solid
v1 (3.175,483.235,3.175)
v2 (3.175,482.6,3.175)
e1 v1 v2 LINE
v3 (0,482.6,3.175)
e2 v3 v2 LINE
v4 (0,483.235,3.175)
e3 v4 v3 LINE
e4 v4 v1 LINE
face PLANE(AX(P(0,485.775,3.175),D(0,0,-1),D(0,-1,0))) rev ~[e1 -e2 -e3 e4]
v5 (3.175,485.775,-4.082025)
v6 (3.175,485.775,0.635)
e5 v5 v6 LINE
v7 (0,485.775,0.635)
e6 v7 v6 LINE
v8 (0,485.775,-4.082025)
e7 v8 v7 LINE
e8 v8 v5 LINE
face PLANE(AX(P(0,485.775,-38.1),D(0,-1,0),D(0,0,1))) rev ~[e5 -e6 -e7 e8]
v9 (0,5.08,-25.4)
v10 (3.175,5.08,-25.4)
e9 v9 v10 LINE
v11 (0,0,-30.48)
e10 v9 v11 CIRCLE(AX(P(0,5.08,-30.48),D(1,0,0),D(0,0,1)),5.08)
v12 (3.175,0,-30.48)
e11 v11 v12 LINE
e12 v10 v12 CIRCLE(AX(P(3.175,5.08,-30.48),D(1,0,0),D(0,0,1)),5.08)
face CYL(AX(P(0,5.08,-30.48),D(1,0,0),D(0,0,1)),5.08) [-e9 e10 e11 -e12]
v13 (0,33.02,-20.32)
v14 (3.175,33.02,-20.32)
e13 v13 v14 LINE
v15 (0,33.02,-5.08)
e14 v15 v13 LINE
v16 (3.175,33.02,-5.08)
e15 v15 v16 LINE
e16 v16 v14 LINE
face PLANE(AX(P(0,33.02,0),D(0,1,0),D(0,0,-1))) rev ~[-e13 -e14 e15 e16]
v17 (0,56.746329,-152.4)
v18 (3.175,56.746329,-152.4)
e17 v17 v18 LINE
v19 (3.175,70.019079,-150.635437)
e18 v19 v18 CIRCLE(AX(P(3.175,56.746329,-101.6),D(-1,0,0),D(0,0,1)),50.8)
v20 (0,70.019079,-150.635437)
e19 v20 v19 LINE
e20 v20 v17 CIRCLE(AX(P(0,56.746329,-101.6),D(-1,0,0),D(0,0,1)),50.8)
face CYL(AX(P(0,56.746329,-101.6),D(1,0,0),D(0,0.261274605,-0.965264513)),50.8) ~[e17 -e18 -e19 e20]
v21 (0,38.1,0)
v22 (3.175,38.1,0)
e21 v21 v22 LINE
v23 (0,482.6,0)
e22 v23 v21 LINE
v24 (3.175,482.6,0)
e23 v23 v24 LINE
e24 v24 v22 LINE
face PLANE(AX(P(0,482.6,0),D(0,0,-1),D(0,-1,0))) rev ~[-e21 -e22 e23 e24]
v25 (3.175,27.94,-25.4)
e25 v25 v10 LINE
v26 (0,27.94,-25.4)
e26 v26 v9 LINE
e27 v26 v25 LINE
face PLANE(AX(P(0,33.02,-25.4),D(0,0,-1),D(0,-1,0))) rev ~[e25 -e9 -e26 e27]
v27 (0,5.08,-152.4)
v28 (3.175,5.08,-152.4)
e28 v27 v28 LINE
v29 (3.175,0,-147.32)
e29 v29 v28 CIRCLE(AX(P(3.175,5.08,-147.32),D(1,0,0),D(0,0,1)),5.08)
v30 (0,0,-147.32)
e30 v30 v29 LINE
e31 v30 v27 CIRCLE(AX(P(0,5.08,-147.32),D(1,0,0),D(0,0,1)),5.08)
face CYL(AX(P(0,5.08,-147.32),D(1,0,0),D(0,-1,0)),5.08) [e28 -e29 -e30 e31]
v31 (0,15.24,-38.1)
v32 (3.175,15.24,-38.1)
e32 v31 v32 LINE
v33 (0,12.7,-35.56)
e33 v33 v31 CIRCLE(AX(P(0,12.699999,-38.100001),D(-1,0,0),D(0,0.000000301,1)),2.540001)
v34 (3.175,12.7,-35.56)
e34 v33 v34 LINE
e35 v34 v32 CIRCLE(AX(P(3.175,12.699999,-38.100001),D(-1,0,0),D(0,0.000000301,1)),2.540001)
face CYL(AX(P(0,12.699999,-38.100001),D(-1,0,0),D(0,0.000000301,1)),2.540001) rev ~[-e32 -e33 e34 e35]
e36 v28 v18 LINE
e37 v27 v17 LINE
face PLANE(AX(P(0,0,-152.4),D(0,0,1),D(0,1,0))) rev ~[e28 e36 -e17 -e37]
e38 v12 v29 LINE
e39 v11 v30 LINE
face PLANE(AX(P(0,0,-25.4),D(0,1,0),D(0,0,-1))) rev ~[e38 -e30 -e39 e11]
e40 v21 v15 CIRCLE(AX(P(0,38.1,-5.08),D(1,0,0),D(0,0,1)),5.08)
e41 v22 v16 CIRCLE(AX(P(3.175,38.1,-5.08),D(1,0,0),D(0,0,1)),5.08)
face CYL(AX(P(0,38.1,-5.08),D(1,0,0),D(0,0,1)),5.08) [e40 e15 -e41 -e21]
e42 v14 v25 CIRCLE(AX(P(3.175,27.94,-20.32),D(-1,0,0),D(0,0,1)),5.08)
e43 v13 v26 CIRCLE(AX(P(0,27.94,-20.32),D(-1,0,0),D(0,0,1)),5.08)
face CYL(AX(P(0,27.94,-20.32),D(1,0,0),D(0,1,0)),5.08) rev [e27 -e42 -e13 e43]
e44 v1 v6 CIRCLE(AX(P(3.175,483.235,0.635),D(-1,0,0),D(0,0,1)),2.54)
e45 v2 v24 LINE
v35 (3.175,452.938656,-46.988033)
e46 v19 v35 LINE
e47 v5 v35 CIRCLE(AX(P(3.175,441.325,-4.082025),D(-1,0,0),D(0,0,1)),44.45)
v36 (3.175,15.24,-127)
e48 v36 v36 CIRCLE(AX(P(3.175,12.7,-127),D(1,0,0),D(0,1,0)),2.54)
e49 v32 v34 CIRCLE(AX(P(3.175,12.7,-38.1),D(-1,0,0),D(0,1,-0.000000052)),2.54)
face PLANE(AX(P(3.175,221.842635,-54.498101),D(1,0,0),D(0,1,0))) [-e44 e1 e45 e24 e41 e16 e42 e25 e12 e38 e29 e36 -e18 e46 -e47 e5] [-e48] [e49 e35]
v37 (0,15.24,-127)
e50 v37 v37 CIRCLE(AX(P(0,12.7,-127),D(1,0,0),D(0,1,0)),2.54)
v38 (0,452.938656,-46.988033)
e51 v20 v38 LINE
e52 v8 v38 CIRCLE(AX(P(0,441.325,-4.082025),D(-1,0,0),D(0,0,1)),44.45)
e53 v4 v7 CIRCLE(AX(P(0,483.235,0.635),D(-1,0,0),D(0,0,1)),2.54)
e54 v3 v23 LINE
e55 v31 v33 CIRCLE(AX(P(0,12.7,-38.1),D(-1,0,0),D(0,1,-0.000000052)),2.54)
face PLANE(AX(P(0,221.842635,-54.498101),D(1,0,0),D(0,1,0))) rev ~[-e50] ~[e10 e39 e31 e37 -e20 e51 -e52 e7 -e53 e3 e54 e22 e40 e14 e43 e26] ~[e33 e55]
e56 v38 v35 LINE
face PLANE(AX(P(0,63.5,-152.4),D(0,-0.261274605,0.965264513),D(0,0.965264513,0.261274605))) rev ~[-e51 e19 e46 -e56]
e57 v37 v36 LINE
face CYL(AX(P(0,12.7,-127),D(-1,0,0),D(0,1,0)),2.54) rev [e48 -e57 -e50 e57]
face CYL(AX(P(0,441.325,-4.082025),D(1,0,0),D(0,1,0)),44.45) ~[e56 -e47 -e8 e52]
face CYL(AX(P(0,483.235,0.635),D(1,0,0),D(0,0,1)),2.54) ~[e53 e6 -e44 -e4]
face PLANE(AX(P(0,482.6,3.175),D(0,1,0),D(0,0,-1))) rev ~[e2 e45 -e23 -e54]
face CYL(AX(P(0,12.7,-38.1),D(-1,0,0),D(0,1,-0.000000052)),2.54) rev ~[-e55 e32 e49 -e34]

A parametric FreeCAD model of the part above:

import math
import FreeCAD as App
import Part
import Sketcher

V = App.Vector
Q = App.Units.Quantity


def edges_at(feature, points):
    """Names of the edges that pass closest to the given points."""
    edges = feature.Shape.Edges
    near = lambda p: min(range(len(edges)), key=lambda i: edges[i].distToShape(Part.Vertex(*p))[0])
    return sorted({f"Edge{near(p) + 1}" for p in points})


def add_polygon(sketch, points):
    """Adds a closed chain of lines whose ends are joined by coincident constraints."""
    first, n = sketch.GeometryCount, len(points)
    for a, b in zip(points, points[1:] + points[:1]):
        sketch.addGeometry(Part.LineSegment(App.Vector(*a, 0), App.Vector(*b, 0)), False)
    for i in range(n):
        sketch.addConstraint(Sketcher.Constraint("Coincident", first + i, 2, first + (i + 1) % n, 1))

doc = App.newDocument("Part")
body = doc.addObject("PartDesign::Body", "Body")

sketch1 = body.newObject("Sketcher::SketchObject", "Sketch")
sketch1.AttachmentSupport = (doc.getObject("YZ_Plane"), [""])
sketch1.MapMode = "FlatFace"
add_polygon(sketch1, [(482.6, 0), (33, 0), (33, -25.4), (0, -25.4), (0, -152.4), (63.5, -152.4), (485.8, -38.1), (485.8, 3.2), (482.6, 3.2)])
sketch1.addGeometry(Part.Circle(V(12.7, -127, 0), V(0, 0, 1), 2.5), False)
sketch1.addGeometry(Part.ArcOfCircle(Part.Circle(V(12.7, -38.1, 0), V(0, 0, 1), 2.5), math.radians(0), math.radians(90)), False)
sketch1.addGeometry(Part.ArcOfCircle(Part.Circle(V(12.7, -38.1, 0), V(0, 0, 1), 2.5), math.radians(90), math.radians(360)), False)
sketch1.addConstraint([
    Sketcher.Constraint("Tangent", 10, 1, 11, 2),
    Sketcher.Constraint("Coincident", 11, 1, 10, 2),
    Sketcher.Constraint("Horizontal", 0),
    Sketcher.Constraint("Vertical", 1),
    Sketcher.Constraint("Horizontal", 2),
    Sketcher.Constraint("Vertical", 3),
    Sketcher.Constraint("Horizontal", 4),
    Sketcher.Constraint("Vertical", 6),
    Sketcher.Constraint("Horizontal", 7),
    Sketcher.Constraint("Vertical", 8),
    Sketcher.Constraint("Equal", 9, 10),
    Sketcher.Constraint("PointOnObject", 0, 2, -1),
    Sketcher.Constraint("PointOnObject", 2, 2, -2),
    Sketcher.Constraint("Horizontal", 11, 3, 5, 2),
    Sketcher.Constraint("Horizontal", 5, 2, 10, 1),
    Sketcher.Constraint("Vertical", 9, 3, 10, 3),
    Sketcher.Constraint("Vertical", 10, 3, 11, 1),
    Sketcher.Constraint("Equal", 7, 8),
    Sketcher.Constraint("Diameter", 9, Q("0.2 in")),
    Sketcher.Constraint("DistanceY", 1, 2, 1, 1, Q("1 in")),
    Sketcher.Constraint("DistanceY", 3, 2, 3, 1, Q("5 in")),
    Sketcher.Constraint("DistanceX", 0, 2, 0, 1, Q("17.7 in")),
    Sketcher.Constraint("DistanceX", 2, 2, 2, 1, Q("1.3 in")),
    Sketcher.Constraint("DistanceX", 4, 1, 4, 2, Q("2.5 in")),
    Sketcher.Constraint("DistanceY", 9, 3, -1, 1, Q("5 in")),
    Sketcher.Constraint("DistanceX", 9, 3, 4, 2, Q("2 in")),
    Sketcher.Constraint("DistanceY", 10, 3, -1, 1, Q("1.5 in")),
    Sketcher.Constraint("DistanceX", 7, 2, 7, 1, Q("0.125 in")),
])
pad1 = body.newObject("PartDesign::Pad", "Pad")
pad1.Profile = sketch1
pad1.Length = Q("0.125 in")
doc.recompute()

fillet = body.newObject("PartDesign::Fillet", "Fillet")
fillet.Base = (pad1, edges_at(pad1, [
    (1.587, 0, -152.4),
    (1.587, 0, -25.4),
    (1.587, 33.02, 0),
    (1.587, 33.02, -25.4),
]))
fillet.Radius = Q("0.2 in")
doc.recompute()

fillet2 = body.newObject("PartDesign::Fillet", "Fillet001")
fillet2.Base = (fillet, edges_at(fillet, [(1.587, 485.775, 3.175)]))
fillet2.Radius = Q("0.1 in")
doc.recompute()

fillet3 = body.newObject("PartDesign::Fillet", "Fillet002")
fillet3.Base = (fillet2, edges_at(fillet2, [(1.587, 485.775, -38.1)]))
fillet3.Radius = Q("1.75 in")
doc.recompute()

fillet4 = body.newObject("PartDesign::Fillet", "Fillet003")
fillet4.Base = (fillet3, edges_at(fillet3, [(1.587, 63.5, -152.4)]))
fillet4.Radius = Q("2 in")

doc.recompute()
